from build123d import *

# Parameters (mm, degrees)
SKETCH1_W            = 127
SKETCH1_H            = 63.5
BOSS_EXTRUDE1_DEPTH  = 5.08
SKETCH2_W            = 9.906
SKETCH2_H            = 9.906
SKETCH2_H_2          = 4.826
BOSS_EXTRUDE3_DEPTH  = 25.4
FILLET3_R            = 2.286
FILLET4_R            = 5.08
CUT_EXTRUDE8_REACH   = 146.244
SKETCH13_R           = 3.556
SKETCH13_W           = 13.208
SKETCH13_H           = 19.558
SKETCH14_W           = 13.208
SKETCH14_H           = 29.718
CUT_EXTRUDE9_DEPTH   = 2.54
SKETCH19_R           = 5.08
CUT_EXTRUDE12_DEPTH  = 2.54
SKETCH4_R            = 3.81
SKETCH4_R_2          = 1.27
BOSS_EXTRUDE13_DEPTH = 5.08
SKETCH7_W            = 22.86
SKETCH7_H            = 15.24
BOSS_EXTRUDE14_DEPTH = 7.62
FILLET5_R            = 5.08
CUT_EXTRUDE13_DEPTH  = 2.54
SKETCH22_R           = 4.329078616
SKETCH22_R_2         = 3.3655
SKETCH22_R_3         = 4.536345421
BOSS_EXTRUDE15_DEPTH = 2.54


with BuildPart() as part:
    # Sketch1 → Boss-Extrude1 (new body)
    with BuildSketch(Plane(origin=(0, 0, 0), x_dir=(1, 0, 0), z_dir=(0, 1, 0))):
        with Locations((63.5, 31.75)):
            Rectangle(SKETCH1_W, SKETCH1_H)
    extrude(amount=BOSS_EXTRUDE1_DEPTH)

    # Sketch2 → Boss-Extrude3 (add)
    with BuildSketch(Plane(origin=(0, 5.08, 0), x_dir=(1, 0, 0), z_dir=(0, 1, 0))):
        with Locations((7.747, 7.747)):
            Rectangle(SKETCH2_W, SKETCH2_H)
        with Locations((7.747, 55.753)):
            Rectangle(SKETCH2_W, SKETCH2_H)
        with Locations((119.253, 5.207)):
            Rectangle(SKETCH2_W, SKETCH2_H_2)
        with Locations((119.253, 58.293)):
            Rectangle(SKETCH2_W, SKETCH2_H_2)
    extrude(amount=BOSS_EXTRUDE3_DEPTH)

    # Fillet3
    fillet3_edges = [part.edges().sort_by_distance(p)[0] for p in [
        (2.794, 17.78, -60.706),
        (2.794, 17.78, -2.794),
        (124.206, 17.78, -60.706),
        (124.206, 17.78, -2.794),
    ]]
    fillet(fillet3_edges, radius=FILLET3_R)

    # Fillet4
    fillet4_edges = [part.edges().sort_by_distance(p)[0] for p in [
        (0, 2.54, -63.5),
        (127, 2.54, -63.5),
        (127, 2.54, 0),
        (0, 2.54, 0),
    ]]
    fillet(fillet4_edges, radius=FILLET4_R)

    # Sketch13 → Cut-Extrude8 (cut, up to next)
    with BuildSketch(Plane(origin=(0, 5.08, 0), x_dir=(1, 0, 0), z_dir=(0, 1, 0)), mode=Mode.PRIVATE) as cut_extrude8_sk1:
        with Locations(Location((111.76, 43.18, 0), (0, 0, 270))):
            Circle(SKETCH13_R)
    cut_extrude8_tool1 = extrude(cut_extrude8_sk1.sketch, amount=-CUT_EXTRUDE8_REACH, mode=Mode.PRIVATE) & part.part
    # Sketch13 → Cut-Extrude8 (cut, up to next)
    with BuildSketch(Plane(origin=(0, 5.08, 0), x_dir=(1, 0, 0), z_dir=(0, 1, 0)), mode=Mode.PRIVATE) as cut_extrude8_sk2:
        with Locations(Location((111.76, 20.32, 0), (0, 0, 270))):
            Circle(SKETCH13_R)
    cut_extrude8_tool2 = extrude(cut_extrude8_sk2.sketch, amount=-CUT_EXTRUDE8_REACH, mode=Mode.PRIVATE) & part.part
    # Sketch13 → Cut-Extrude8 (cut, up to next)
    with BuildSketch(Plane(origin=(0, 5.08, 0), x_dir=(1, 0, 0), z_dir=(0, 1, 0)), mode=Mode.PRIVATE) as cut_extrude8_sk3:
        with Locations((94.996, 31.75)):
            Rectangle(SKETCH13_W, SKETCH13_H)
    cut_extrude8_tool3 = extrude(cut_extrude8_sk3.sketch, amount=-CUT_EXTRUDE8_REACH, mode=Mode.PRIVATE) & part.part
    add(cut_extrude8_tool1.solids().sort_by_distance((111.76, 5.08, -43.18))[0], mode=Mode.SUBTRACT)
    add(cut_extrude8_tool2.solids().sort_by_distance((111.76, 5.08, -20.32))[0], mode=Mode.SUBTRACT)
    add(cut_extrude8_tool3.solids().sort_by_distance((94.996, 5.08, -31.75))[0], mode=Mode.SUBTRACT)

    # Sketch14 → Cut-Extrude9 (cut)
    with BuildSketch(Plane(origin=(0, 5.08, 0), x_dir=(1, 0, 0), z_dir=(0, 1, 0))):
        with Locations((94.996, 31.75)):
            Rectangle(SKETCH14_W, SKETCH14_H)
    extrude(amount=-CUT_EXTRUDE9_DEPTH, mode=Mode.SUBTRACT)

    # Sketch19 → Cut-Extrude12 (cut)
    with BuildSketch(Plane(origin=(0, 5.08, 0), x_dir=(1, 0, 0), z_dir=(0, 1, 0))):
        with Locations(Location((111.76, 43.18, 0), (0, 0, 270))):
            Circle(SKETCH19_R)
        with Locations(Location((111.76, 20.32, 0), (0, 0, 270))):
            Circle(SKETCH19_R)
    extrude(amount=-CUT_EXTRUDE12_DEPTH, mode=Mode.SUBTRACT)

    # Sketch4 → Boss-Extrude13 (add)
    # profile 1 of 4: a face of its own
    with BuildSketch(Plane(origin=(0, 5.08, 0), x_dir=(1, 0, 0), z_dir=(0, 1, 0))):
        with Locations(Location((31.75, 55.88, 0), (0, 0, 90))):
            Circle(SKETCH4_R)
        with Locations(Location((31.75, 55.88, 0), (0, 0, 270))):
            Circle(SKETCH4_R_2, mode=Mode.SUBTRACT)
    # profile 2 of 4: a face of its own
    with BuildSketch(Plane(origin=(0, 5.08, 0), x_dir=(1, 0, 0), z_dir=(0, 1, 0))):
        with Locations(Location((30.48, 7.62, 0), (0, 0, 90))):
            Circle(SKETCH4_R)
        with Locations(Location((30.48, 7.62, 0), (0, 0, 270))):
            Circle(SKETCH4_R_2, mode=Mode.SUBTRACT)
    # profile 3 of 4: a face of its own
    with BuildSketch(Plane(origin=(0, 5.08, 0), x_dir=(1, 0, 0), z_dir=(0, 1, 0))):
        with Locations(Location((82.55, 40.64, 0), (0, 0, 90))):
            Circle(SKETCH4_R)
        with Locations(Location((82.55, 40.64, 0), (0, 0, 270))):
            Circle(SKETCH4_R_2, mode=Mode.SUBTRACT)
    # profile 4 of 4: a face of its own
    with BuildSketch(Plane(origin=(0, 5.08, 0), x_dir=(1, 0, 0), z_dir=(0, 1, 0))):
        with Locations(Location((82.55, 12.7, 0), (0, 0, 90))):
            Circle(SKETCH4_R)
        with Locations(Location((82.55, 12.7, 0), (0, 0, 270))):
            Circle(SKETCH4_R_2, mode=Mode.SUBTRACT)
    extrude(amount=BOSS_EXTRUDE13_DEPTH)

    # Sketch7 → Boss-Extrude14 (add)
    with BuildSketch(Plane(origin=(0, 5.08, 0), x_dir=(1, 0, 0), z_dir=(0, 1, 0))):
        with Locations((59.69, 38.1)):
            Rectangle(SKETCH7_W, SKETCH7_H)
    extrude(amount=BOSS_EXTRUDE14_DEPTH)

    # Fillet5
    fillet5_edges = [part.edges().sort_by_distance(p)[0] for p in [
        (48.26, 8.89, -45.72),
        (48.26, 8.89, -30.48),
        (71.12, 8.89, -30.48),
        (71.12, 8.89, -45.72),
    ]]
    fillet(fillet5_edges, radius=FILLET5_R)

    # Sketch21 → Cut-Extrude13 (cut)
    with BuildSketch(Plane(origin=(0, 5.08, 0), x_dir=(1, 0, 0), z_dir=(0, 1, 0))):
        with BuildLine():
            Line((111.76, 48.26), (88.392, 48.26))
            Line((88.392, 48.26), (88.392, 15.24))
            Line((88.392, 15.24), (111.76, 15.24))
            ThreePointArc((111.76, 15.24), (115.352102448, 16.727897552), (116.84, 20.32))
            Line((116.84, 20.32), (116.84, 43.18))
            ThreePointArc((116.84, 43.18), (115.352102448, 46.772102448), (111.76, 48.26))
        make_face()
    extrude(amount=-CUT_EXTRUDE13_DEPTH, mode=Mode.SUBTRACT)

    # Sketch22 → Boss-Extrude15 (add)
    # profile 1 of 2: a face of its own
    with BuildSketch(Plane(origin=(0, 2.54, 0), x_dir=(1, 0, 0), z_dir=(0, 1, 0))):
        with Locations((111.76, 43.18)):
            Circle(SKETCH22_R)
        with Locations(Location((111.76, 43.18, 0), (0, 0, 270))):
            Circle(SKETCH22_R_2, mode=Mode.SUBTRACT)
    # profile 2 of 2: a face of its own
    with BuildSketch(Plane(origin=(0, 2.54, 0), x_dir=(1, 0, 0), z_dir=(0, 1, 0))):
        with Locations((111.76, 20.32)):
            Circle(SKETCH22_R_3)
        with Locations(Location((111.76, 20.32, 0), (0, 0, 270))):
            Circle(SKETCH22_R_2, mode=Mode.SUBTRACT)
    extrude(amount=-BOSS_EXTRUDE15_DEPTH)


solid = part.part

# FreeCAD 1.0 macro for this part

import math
import FreeCAD as App
import Part
import Sketcher
Q = App.Units.Quantity


def edges_at(feature, points):
    """Names of the edges that pass closest to the given points."""
    edges = feature.Shape.Edges
    near = lambda p: min(range(len(edges)), key=lambda i: edges[i].distToShape(Part.Vertex(*p))[0])
    return sorted({f"Edge{near(p) + 1}" for p in points})

doc = App.newDocument("Part")
body = doc.addObject("PartDesign::Body", "Body")

# Sketch on XZ plane
sketch1 = body.newObject("Sketcher::SketchObject", "Sketch")
sketch1.AttachmentSupport = (doc.getObject("XZ_Plane"), [""])
sketch1.MapMode = "FlatFace"
sketch1.addGeometry([
    Part.LineSegment(App.Vector(0, -63.5, 0), App.Vector(0, 0, 0)),
    Part.LineSegment(App.Vector(0, 0, 0), App.Vector(127, 0, 0)),
    Part.LineSegment(App.Vector(127, 0, 0), App.Vector(127, -63.5, 0)),
    Part.LineSegment(App.Vector(127, -63.5, 0), App.Vector(0, -63.5, 0)),
], False)
sketch1.addConstraint([
    Sketcher.Constraint("Coincident", 0, 2, 1, 1),
    Sketcher.Constraint("Coincident", 1, 2, 2, 1),
    Sketcher.Constraint("Coincident", 2, 2, 3, 1),
    Sketcher.Constraint("Coincident", 3, 2, 0, 1),
    Sketcher.Constraint("Vertical", 0),
    Sketcher.Constraint("Horizontal", 1),
    Sketcher.Constraint("Vertical", 2),
    Sketcher.Constraint("Horizontal", 3),
    Sketcher.Constraint("Coincident", 0, 2, -1, 1),
    Sketcher.Constraint("DistanceX", 1, 1, 1, 2, Q("5 in")),
    Sketcher.Constraint("DistanceY", 0, 1, 0, 2, Q("2.5 in")),
])
pad1 = body.newObject("PartDesign::Pad", "Pad")
pad1.Profile = sketch1
pad1.Length = Q("0.2 in")
pad1.Reversed = True

# Sketch on XZ plane
sketch2 = body.newObject("Sketcher::SketchObject", "Sketch001")
sketch2.AttachmentSupport = (doc.getObject("XZ_Plane"), [""])
sketch2.MapMode = "FlatFace"
sketch2.AttachmentOffset = App.Placement(App.Vector(0, 0, -0.2 * 25.4), App.Rotation())
sketch2.addGeometry([
    Part.LineSegment(App.Vector(2.794, -12.7, 0), App.Vector(2.794, -2.794, 0)),  # 0
    Part.LineSegment(App.Vector(2.794, -2.794, 0), App.Vector(12.7, -2.794, 0)),  # 1
    Part.LineSegment(App.Vector(12.7, -2.794, 0), App.Vector(12.7, -12.7, 0)),  # 2
    Part.LineSegment(App.Vector(12.7, -12.7, 0), App.Vector(2.794, -12.7, 0)),  # 3
    Part.LineSegment(App.Vector(2.794, -60.706, 0), App.Vector(2.794, -50.8, 0)),  # 4
    Part.LineSegment(App.Vector(2.794, -50.8, 0), App.Vector(12.7, -50.8, 0)),  # 5
    Part.LineSegment(App.Vector(12.7, -50.8, 0), App.Vector(12.7, -60.706, 0)),  # 6
    Part.LineSegment(App.Vector(12.7, -60.706, 0), App.Vector(2.794, -60.706, 0)),  # 7
    Part.LineSegment(App.Vector(114.3, -7.62, 0), App.Vector(114.3, -2.794, 0)),  # 8
    Part.LineSegment(App.Vector(114.3, -2.794, 0), App.Vector(124.206, -2.794, 0)),  # 9
    Part.LineSegment(App.Vector(124.206, -2.794, 0), App.Vector(124.206, -7.62, 0)),  # 10
    Part.LineSegment(App.Vector(124.206, -7.62, 0), App.Vector(114.3, -7.62, 0)),  # 11
    Part.LineSegment(App.Vector(114.3, -60.706, 0), App.Vector(114.3, -55.88, 0)),  # 12
    Part.LineSegment(App.Vector(114.3, -55.88, 0), App.Vector(124.206, -55.88, 0)),  # 13
    Part.LineSegment(App.Vector(124.206, -55.88, 0), App.Vector(124.206, -60.706, 0)),  # 14
    Part.LineSegment(App.Vector(124.206, -60.706, 0), App.Vector(114.3, -60.706, 0)),  # 15
], False)
sketch2.addConstraint([
    Sketcher.Constraint("Coincident", 0, 2, 1, 1),
    Sketcher.Constraint("Coincident", 1, 2, 2, 1),
    Sketcher.Constraint("Coincident", 2, 2, 3, 1),
    Sketcher.Constraint("Coincident", 3, 2, 0, 1),
    Sketcher.Constraint("Coincident", 4, 2, 5, 1),
    Sketcher.Constraint("Coincident", 5, 2, 6, 1),
    Sketcher.Constraint("Coincident", 6, 2, 7, 1),
    Sketcher.Constraint("Coincident", 7, 2, 4, 1),
    Sketcher.Constraint("Coincident", 8, 2, 9, 1),
    Sketcher.Constraint("Coincident", 9, 2, 10, 1),
    Sketcher.Constraint("Coincident", 10, 2, 11, 1),
    Sketcher.Constraint("Coincident", 11, 2, 8, 1),
    Sketcher.Constraint("Coincident", 12, 2, 13, 1),
    Sketcher.Constraint("Coincident", 13, 2, 14, 1),
    Sketcher.Constraint("Coincident", 14, 2, 15, 1),
    Sketcher.Constraint("Coincident", 15, 2, 12, 1),
    Sketcher.Constraint("Vertical", 0),
    Sketcher.Constraint("Horizontal", 1),
    Sketcher.Constraint("Vertical", 2),
    Sketcher.Constraint("Horizontal", 3),
    Sketcher.Constraint("Vertical", 4),
    Sketcher.Constraint("Horizontal", 5),
    Sketcher.Constraint("Vertical", 6),
    Sketcher.Constraint("Horizontal", 7),
    Sketcher.Constraint("Vertical", 8),
    Sketcher.Constraint("Horizontal", 9),
    Sketcher.Constraint("Vertical", 10),
    Sketcher.Constraint("Horizontal", 11),
    Sketcher.Constraint("Vertical", 12),
    Sketcher.Constraint("Horizontal", 13),
    Sketcher.Constraint("Vertical", 14),
    Sketcher.Constraint("Horizontal", 15),
    Sketcher.Constraint("Horizontal", 1, 2, 8, 2),
    Sketcher.Constraint("Horizontal", 7, 2, 14, 2),
    Sketcher.Constraint("Vertical", 3, 2, 4, 2),
    Sketcher.Constraint("Vertical", 2, 2, 5, 2),
    Sketcher.Constraint("Vertical", 11, 2, 12, 2),
    Sketcher.Constraint("Vertical", 10, 2, 13, 2),
    Sketcher.Constraint("Equal", 7, 9),
    Sketcher.Constraint("Equal", 15, 0),
    Sketcher.Constraint("Equal", 2, 4),
    Sketcher.Constraint("Equal", 10, 12),
    Sketcher.Constraint("DistanceY", 4, 2, -1, 1, Q("2 in")),
    Sketcher.Constraint("DistanceX", 1, 2, 8, 2, Q("4 in")),
    Sketcher.Constraint("DistanceX", 1, 1, 1, 2, Q("0.39 in")),
    Sketcher.Constraint("DistanceY", 8, 1, 8, 2, Q("0.19 in")),
    Sketcher.Constraint("DistanceX", -1, 1, 1, 2, Q("0.5 in")),
    Sketcher.Constraint("DistanceY", 2, 2, -1, 1, Q("0.5 in")),
])
pad2 = body.newObject("PartDesign::Pad", "Pad001")
pad2.Profile = sketch2
pad2.Length = Q("1 in")
pad2.Reversed = True
doc.recompute()

fillet = body.newObject("PartDesign::Fillet", "Fillet")
fillet.Base = (pad2, edges_at(pad2, [
    (2.794, 17.78, -60.706),
    (2.794, 17.78, -2.794),
    (124.206, 17.78, -60.706),
    (124.206, 17.78, -2.794),
]))
fillet.Radius = Q("0.09 in")
doc.recompute()

fillet2 = body.newObject("PartDesign::Fillet", "Fillet001")
fillet2.Base = (fillet, edges_at(fillet, [
    (0, 2.54, -63.5),
    (127, 2.54, -63.5),
    (127, 2.54, 0),
    (0, 2.54, 0),
]))
fillet2.Radius = Q("0.2 in")

# Sketch on XZ plane
sketch3 = body.newObject("Sketcher::SketchObject", "Sketch002")
sketch3.AttachmentSupport = (doc.getObject("XZ_Plane"), [""])
sketch3.MapMode = "FlatFace"
sketch3.AttachmentOffset = App.Placement(App.Vector(0, 0, -0.2 * 25.4), App.Rotation())
sketch3.addGeometry(Part.Circle(App.Vector(111.76, -43.18, 0), App.Vector(0, 0, 1), 3.556), False)
sketch3.addConstraint([
    Sketcher.Constraint("Diameter", 0, Q("0.28 in")),
    Sketcher.Constraint("DistanceX", -1, 1, 0, 3, Q("4.4 in")),
    Sketcher.Constraint("DistanceY", 0, 3, -1, 1, Q("1.7 in")),
])
pocket1 = body.newObject("PartDesign::Pocket", "Pocket")
pocket1.Profile = sketch3
pocket1.Type = "UpToFirst"
pocket1.Reversed = True

# Sketch on XZ plane
sketch4 = body.newObject("Sketcher::SketchObject", "Sketch003")
sketch4.AttachmentSupport = (doc.getObject("XZ_Plane"), [""])
sketch4.MapMode = "FlatFace"
sketch4.AttachmentOffset = App.Placement(App.Vector(0, 0, -0.2 * 25.4), App.Rotation())
sketch4.addGeometry(Part.Circle(App.Vector(111.76, -20.32, 0), App.Vector(0, 0, 1), 3.556), False)
sketch4.addConstraint([
    Sketcher.Constraint("Diameter", 0, Q("0.28 in")),
    Sketcher.Constraint("DistanceX", -1, 1, 0, 3, Q("4.4 in")),
    Sketcher.Constraint("DistanceY", 0, 3, -1, 1, Q("0.8 in")),
])
pocket2 = body.newObject("PartDesign::Pocket", "Pocket001")
pocket2.Profile = sketch4
pocket2.Type = "UpToFirst"
pocket2.Reversed = True

# Sketch on XZ plane
sketch5 = body.newObject("Sketcher::SketchObject", "Sketch004")
sketch5.AttachmentSupport = (doc.getObject("XZ_Plane"), [""])
sketch5.MapMode = "FlatFace"
sketch5.AttachmentOffset = App.Placement(App.Vector(0, 0, -0.2 * 25.4), App.Rotation())
sketch5.addGeometry([
    Part.LineSegment(App.Vector(88.392, -41.529, 0), App.Vector(88.392, -21.971, 0)),
    Part.LineSegment(App.Vector(88.392, -21.971, 0), App.Vector(101.6, -21.971, 0)),
    Part.LineSegment(App.Vector(101.6, -21.971, 0), App.Vector(101.6, -41.529, 0)),
    Part.LineSegment(App.Vector(101.6, -41.529, 0), App.Vector(88.392, -41.529, 0)),
], False)
sketch5.addConstraint([
    Sketcher.Constraint("Coincident", 0, 2, 1, 1),
    Sketcher.Constraint("Coincident", 1, 2, 2, 1),
    Sketcher.Constraint("Coincident", 2, 2, 3, 1),
    Sketcher.Constraint("Coincident", 3, 2, 0, 1),
    Sketcher.Constraint("Vertical", 0),
    Sketcher.Constraint("Horizontal", 1),
    Sketcher.Constraint("Vertical", 2),
    Sketcher.Constraint("Horizontal", 3),
    Sketcher.Constraint("DistanceX", -1, 1, 1, 2, Q("4 in")),
    Sketcher.Constraint("DistanceX", 1, 1, 1, 2, Q("0.52 in")),
    Sketcher.Constraint("DistanceY", 0, 1, 0, 2, Q("0.77 in")),
    Sketcher.Constraint("DistanceY", 0, 2, -1, 1, Q("0.865 in")),
])
pocket3 = body.newObject("PartDesign::Pocket", "Pocket002")
pocket3.Profile = sketch5
pocket3.Type = "UpToFirst"
pocket3.Reversed = True

# Sketch on XZ plane
sketch6 = body.newObject("Sketcher::SketchObject", "Sketch005")
sketch6.AttachmentSupport = (doc.getObject("XZ_Plane"), [""])
sketch6.MapMode = "FlatFace"
sketch6.AttachmentOffset = App.Placement(App.Vector(0, 0, -0.2 * 25.4), App.Rotation())
sketch6.addGeometry([
    Part.LineSegment(App.Vector(88.392, -46.609, 0), App.Vector(88.392, -16.891, 0)),
    Part.LineSegment(App.Vector(88.392, -16.891, 0), App.Vector(101.6, -16.891, 0)),
    Part.LineSegment(App.Vector(101.6, -16.891, 0), App.Vector(101.6, -46.609, 0)),
    Part.LineSegment(App.Vector(101.6, -46.609, 0), App.Vector(88.392, -46.609, 0)),
], False)
sketch6.addConstraint([
    Sketcher.Constraint("Coincident", 0, 2, 1, 1),
    Sketcher.Constraint("Coincident", 1, 2, 2, 1),
    Sketcher.Constraint("Coincident", 2, 2, 3, 1),
    Sketcher.Constraint("Coincident", 3, 2, 0, 1),
    Sketcher.Constraint("Vertical", 0),
    Sketcher.Constraint("Horizontal", 1),
    Sketcher.Constraint("Vertical", 2),
    Sketcher.Constraint("Horizontal", 3),
    Sketcher.Constraint("DistanceX", -1, 1, 1, 2, Q("4 in")),
    Sketcher.Constraint("DistanceX", 1, 1, 1, 2, Q("0.52 in")),
    Sketcher.Constraint("DistanceY", 0, 1, 0, 2, Q("1.17 in")),
    Sketcher.Constraint("DistanceY", 0, 2, -1, 1, Q("0.665 in")),
])
pocket4 = body.newObject("PartDesign::Pocket", "Pocket003")
pocket4.Profile = sketch6
pocket4.Length = Q("0.1 in")
pocket4.Reversed = True

# Sketch on XZ plane
sketch7 = body.newObject("Sketcher::SketchObject", "Sketch006")
sketch7.AttachmentSupport = (doc.getObject("XZ_Plane"), [""])
sketch7.MapMode = "FlatFace"
sketch7.AttachmentOffset = App.Placement(App.Vector(0, 0, -0.2 * 25.4), App.Rotation())
sketch7.addGeometry([
    Part.Circle(App.Vector(111.76, -43.18, 0), App.Vector(0, 0, 1), 5.08),
    Part.Circle(App.Vector(111.76, -20.32, 0), App.Vector(0, 0, 1), 5.08),
], False)
sketch7.addConstraint([
    Sketcher.Constraint("Equal", 0, 1),
    Sketcher.Constraint("Vertical", 0, 3, 1, 3),
    Sketcher.Constraint("Diameter", 0, Q("0.4 in")),
    Sketcher.Constraint("DistanceX", -1, 1, 0, 3, Q("4.4 in")),
    Sketcher.Constraint("DistanceY", 0, 3, -1, 1, Q("1.7 in")),
    Sketcher.Constraint("DistanceY", 1, 3, -1, 1, Q("0.8 in")),
])
pocket5 = body.newObject("PartDesign::Pocket", "Pocket004")
pocket5.Profile = sketch7
pocket5.Length = Q("0.1 in")
pocket5.Reversed = True

# Sketch on XZ plane
sketch8 = body.newObject("Sketcher::SketchObject", "Sketch007")
sketch8.AttachmentSupport = (doc.getObject("XZ_Plane"), [""])
sketch8.MapMode = "FlatFace"
sketch8.AttachmentOffset = App.Placement(App.Vector(0, 0, -0.2 * 25.4), App.Rotation())
sketch8.addGeometry([
    Part.Circle(App.Vector(31.75, -55.88, 0), App.Vector(0, 0, 1), 3.81),  # 0
    Part.Circle(App.Vector(31.75, -55.88, 0), App.Vector(0, 0, 1), 1.27),  # 1
    Part.Circle(App.Vector(30.48, -7.62, 0), App.Vector(0, 0, 1), 3.81),  # 2
    Part.Circle(App.Vector(30.48, -7.62, 0), App.Vector(0, 0, 1), 1.27),  # 3
    Part.Circle(App.Vector(82.55, -40.64, 0), App.Vector(0, 0, 1), 3.81),  # 4
    Part.Circle(App.Vector(82.55, -40.64, 0), App.Vector(0, 0, 1), 1.27),  # 5
    Part.Circle(App.Vector(82.55, -12.7, 0), App.Vector(0, 0, 1), 3.81),  # 6
    Part.Circle(App.Vector(82.55, -12.7, 0), App.Vector(0, 0, 1), 1.27),  # 7
], False)
sketch8.addConstraint([
    Sketcher.Constraint("Coincident", 1, 3, 0, 3),
    Sketcher.Constraint("Coincident", 3, 3, 2, 3),
    Sketcher.Constraint("Coincident", 5, 3, 4, 3),
    Sketcher.Constraint("Coincident", 7, 3, 6, 3),
    Sketcher.Constraint("Equal", 0, 2),
    Sketcher.Constraint("Equal", 1, 3),
    Sketcher.Constraint("Equal", 2, 4),
    Sketcher.Constraint("Equal", 3, 5),
    Sketcher.Constraint("Equal", 4, 6),
    Sketcher.Constraint("Equal", 5, 7),
    Sketcher.Constraint("Vertical", 5, 3, 6, 3),
    Sketcher.Constraint("Diameter", 0, Q("0.3 in")),
    Sketcher.Constraint("Diameter", 1, Q("0.1 in")),
    Sketcher.Constraint("DistanceX", 0, 3, 4, 3, Q("2 in")),
    Sketcher.Constraint("DistanceY", 0, 3, -1, 1, Q("2.2 in")),
    Sketcher.Constraint("DistanceX", -1, 1, 2, 3, Q("1.2 in")),
    Sketcher.Constraint("DistanceY", 2, 3, -1, 1, Q("0.3 in")),
    Sketcher.Constraint("DistanceY", 4, 3, -1, 1, Q("1.6 in")),
    Sketcher.Constraint("DistanceY", 6, 3, -1, 1, Q("0.5 in")),
    Sketcher.Constraint("DistanceX", -1, 1, 0, 3, Q("1.25 in")),
])
pad3 = body.newObject("PartDesign::Pad", "Pad002")
pad3.Profile = sketch8
pad3.Length = Q("0.2 in")
pad3.Reversed = True

# Sketch on XZ plane
sketch9 = body.newObject("Sketcher::SketchObject", "Sketch008")
sketch9.AttachmentSupport = (doc.getObject("XZ_Plane"), [""])
sketch9.MapMode = "FlatFace"
sketch9.AttachmentOffset = App.Placement(App.Vector(0, 0, -0.2 * 25.4), App.Rotation())
sketch9.addGeometry([
    Part.LineSegment(App.Vector(48.26, -45.72, 0), App.Vector(48.26, -30.48, 0)),
    Part.LineSegment(App.Vector(48.26, -30.48, 0), App.Vector(71.12, -30.48, 0)),
    Part.LineSegment(App.Vector(71.12, -30.48, 0), App.Vector(71.12, -45.72, 0)),
    Part.LineSegment(App.Vector(71.12, -45.72, 0), App.Vector(48.26, -45.72, 0)),
], False)
sketch9.addConstraint([
    Sketcher.Constraint("Coincident", 0, 2, 1, 1),
    Sketcher.Constraint("Coincident", 1, 2, 2, 1),
    Sketcher.Constraint("Coincident", 2, 2, 3, 1),
    Sketcher.Constraint("Coincident", 3, 2, 0, 1),
    Sketcher.Constraint("Vertical", 0),
    Sketcher.Constraint("Horizontal", 1),
    Sketcher.Constraint("Vertical", 2),
    Sketcher.Constraint("Horizontal", 3),
    Sketcher.Constraint("DistanceX", 1, 1, 1, 2, Q("0.9 in")),
    Sketcher.Constraint("DistanceY", 0, 1, 0, 2, Q("0.6 in")),
    Sketcher.Constraint("DistanceX", -1, 1, 0, 2, Q("1.9 in")),
    Sketcher.Constraint("DistanceY", 0, 2, -1, 1, Q("1.2 in")),
])
pad4 = body.newObject("PartDesign::Pad", "Pad003")
pad4.Profile = sketch9
pad4.Length = Q("0.3 in")
pad4.Reversed = True
doc.recompute()

fillet3 = body.newObject("PartDesign::Fillet", "Fillet002")
fillet3.Base = (pad4, edges_at(pad4, [
    (48.26, 8.89, -45.72),
    (48.26, 8.89, -30.48),
    (71.12, 8.89, -30.48),
    (71.12, 8.89, -45.72),
]))
fillet3.Radius = Q("0.2 in")

# Sketch on XZ plane
sketch10 = body.newObject("Sketcher::SketchObject", "Sketch009")
sketch10.AttachmentSupport = (doc.getObject("XZ_Plane"), [""])
sketch10.MapMode = "FlatFace"
sketch10.AttachmentOffset = App.Placement(App.Vector(0, 0, -0.2 * 25.4), App.Rotation())
sketch10.addGeometry([
    Part.LineSegment(App.Vector(111.76, -48.26, 0), App.Vector(88.392, -48.26, 0)),  # 0
    Part.LineSegment(App.Vector(88.392, -48.26, 0), App.Vector(88.392, -15.24, 0)),  # 1
    Part.LineSegment(App.Vector(88.392, -15.24, 0), App.Vector(111.76, -15.24, 0)),  # 2
    Part.ArcOfCircle(Part.Circle(App.Vector(111.76, -20.32, 0), App.Vector(0, 0, 1), 5.08), math.radians(0), math.radians(90)),  # 3
    Part.LineSegment(App.Vector(116.84, -20.32, 0), App.Vector(116.84, -43.18, 0)),  # 4
    Part.ArcOfCircle(Part.Circle(App.Vector(111.76, -43.18, 0), App.Vector(0, 0, 1), 5.08), math.radians(-90), math.radians(0)),  # 5
], False)
sketch10.addConstraint([
    Sketcher.Constraint("Coincident", 0, 2, 1, 1),
    Sketcher.Constraint("Coincident", 1, 2, 2, 1),
    Sketcher.Constraint("Tangent", 2, 2, 3, 2),
    Sketcher.Constraint("Tangent", 3, 1, 4, 1),
    Sketcher.Constraint("Tangent", 4, 2, 5, 2),
    Sketcher.Constraint("Tangent", 5, 1, 0, 1),
    Sketcher.Constraint("Horizontal", 0),
    Sketcher.Constraint("Vertical", 1),
    Sketcher.Constraint("Horizontal", 2),
    Sketcher.Constraint("Vertical", 4),
    Sketcher.Constraint("Equal", 3, 5),
    Sketcher.Constraint("Radius", 3, Q("0.2 in")),
    Sketcher.Constraint("DistanceY", 1, 1, 1, 2, Q("1.3 in")),
    Sketcher.Constraint("DistanceX", 0, 2, 0, 1, Q("0.92 in")),
    Sketcher.Constraint("DistanceX", -1, 1, 3, 3, Q("4.4 in")),
    Sketcher.Constraint("DistanceY", 3, 3, -1, 1, Q("0.8 in")),
])
pocket6 = body.newObject("PartDesign::Pocket", "Pocket005")
pocket6.Profile = sketch10
pocket6.Length = Q("0.1 in")
pocket6.Reversed = True

# Sketch on XZ plane
sketch11 = body.newObject("Sketcher::SketchObject", "Sketch010")
sketch11.AttachmentSupport = (doc.getObject("XZ_Plane"), [""])
sketch11.MapMode = "FlatFace"
sketch11.AttachmentOffset = App.Placement(App.Vector(0, 0, -0.1 * 25.4), App.Rotation())
sketch11.addGeometry([
    Part.Circle(App.Vector(111.76, -43.18, 0), App.Vector(0, 0, 1), 4.329079),
    Part.Circle(App.Vector(111.76, -43.18, 0), App.Vector(0, 0, 1), 3.3655),
    Part.Circle(App.Vector(111.76, -20.32, 0), App.Vector(0, 0, 1), 4.536345),
    Part.Circle(App.Vector(111.76, -20.32, 0), App.Vector(0, 0, 1), 3.3655),
], False)
sketch11.addConstraint([
    Sketcher.Constraint("Coincident", 1, 3, 0, 3),
    Sketcher.Constraint("Coincident", 3, 3, 2, 3),
    Sketcher.Constraint("Equal", 1, 3),
    Sketcher.Constraint("Vertical", 1, 3, 2, 3),
    Sketcher.Constraint("Diameter", 1, Q("0.265 in")),
    Sketcher.Constraint("DistanceX", -1, 1, 0, 3, Q("4.4 in")),
    Sketcher.Constraint("DistanceY", 0, 3, -1, 1, Q("1.7 in")),
    Sketcher.Constraint("DistanceY", 2, 3, -1, 1, Q("0.8 in")),
    Sketcher.Constraint("Diameter", 2, Q("9.072691 mm")),
    Sketcher.Constraint("Diameter", 0, Q("8.658157 mm")),
])
pad5 = body.newObject("PartDesign::Pad", "Pad004")
pad5.Profile = sketch11
pad5.Length = Q("0.1 in")

doc.recompute()
